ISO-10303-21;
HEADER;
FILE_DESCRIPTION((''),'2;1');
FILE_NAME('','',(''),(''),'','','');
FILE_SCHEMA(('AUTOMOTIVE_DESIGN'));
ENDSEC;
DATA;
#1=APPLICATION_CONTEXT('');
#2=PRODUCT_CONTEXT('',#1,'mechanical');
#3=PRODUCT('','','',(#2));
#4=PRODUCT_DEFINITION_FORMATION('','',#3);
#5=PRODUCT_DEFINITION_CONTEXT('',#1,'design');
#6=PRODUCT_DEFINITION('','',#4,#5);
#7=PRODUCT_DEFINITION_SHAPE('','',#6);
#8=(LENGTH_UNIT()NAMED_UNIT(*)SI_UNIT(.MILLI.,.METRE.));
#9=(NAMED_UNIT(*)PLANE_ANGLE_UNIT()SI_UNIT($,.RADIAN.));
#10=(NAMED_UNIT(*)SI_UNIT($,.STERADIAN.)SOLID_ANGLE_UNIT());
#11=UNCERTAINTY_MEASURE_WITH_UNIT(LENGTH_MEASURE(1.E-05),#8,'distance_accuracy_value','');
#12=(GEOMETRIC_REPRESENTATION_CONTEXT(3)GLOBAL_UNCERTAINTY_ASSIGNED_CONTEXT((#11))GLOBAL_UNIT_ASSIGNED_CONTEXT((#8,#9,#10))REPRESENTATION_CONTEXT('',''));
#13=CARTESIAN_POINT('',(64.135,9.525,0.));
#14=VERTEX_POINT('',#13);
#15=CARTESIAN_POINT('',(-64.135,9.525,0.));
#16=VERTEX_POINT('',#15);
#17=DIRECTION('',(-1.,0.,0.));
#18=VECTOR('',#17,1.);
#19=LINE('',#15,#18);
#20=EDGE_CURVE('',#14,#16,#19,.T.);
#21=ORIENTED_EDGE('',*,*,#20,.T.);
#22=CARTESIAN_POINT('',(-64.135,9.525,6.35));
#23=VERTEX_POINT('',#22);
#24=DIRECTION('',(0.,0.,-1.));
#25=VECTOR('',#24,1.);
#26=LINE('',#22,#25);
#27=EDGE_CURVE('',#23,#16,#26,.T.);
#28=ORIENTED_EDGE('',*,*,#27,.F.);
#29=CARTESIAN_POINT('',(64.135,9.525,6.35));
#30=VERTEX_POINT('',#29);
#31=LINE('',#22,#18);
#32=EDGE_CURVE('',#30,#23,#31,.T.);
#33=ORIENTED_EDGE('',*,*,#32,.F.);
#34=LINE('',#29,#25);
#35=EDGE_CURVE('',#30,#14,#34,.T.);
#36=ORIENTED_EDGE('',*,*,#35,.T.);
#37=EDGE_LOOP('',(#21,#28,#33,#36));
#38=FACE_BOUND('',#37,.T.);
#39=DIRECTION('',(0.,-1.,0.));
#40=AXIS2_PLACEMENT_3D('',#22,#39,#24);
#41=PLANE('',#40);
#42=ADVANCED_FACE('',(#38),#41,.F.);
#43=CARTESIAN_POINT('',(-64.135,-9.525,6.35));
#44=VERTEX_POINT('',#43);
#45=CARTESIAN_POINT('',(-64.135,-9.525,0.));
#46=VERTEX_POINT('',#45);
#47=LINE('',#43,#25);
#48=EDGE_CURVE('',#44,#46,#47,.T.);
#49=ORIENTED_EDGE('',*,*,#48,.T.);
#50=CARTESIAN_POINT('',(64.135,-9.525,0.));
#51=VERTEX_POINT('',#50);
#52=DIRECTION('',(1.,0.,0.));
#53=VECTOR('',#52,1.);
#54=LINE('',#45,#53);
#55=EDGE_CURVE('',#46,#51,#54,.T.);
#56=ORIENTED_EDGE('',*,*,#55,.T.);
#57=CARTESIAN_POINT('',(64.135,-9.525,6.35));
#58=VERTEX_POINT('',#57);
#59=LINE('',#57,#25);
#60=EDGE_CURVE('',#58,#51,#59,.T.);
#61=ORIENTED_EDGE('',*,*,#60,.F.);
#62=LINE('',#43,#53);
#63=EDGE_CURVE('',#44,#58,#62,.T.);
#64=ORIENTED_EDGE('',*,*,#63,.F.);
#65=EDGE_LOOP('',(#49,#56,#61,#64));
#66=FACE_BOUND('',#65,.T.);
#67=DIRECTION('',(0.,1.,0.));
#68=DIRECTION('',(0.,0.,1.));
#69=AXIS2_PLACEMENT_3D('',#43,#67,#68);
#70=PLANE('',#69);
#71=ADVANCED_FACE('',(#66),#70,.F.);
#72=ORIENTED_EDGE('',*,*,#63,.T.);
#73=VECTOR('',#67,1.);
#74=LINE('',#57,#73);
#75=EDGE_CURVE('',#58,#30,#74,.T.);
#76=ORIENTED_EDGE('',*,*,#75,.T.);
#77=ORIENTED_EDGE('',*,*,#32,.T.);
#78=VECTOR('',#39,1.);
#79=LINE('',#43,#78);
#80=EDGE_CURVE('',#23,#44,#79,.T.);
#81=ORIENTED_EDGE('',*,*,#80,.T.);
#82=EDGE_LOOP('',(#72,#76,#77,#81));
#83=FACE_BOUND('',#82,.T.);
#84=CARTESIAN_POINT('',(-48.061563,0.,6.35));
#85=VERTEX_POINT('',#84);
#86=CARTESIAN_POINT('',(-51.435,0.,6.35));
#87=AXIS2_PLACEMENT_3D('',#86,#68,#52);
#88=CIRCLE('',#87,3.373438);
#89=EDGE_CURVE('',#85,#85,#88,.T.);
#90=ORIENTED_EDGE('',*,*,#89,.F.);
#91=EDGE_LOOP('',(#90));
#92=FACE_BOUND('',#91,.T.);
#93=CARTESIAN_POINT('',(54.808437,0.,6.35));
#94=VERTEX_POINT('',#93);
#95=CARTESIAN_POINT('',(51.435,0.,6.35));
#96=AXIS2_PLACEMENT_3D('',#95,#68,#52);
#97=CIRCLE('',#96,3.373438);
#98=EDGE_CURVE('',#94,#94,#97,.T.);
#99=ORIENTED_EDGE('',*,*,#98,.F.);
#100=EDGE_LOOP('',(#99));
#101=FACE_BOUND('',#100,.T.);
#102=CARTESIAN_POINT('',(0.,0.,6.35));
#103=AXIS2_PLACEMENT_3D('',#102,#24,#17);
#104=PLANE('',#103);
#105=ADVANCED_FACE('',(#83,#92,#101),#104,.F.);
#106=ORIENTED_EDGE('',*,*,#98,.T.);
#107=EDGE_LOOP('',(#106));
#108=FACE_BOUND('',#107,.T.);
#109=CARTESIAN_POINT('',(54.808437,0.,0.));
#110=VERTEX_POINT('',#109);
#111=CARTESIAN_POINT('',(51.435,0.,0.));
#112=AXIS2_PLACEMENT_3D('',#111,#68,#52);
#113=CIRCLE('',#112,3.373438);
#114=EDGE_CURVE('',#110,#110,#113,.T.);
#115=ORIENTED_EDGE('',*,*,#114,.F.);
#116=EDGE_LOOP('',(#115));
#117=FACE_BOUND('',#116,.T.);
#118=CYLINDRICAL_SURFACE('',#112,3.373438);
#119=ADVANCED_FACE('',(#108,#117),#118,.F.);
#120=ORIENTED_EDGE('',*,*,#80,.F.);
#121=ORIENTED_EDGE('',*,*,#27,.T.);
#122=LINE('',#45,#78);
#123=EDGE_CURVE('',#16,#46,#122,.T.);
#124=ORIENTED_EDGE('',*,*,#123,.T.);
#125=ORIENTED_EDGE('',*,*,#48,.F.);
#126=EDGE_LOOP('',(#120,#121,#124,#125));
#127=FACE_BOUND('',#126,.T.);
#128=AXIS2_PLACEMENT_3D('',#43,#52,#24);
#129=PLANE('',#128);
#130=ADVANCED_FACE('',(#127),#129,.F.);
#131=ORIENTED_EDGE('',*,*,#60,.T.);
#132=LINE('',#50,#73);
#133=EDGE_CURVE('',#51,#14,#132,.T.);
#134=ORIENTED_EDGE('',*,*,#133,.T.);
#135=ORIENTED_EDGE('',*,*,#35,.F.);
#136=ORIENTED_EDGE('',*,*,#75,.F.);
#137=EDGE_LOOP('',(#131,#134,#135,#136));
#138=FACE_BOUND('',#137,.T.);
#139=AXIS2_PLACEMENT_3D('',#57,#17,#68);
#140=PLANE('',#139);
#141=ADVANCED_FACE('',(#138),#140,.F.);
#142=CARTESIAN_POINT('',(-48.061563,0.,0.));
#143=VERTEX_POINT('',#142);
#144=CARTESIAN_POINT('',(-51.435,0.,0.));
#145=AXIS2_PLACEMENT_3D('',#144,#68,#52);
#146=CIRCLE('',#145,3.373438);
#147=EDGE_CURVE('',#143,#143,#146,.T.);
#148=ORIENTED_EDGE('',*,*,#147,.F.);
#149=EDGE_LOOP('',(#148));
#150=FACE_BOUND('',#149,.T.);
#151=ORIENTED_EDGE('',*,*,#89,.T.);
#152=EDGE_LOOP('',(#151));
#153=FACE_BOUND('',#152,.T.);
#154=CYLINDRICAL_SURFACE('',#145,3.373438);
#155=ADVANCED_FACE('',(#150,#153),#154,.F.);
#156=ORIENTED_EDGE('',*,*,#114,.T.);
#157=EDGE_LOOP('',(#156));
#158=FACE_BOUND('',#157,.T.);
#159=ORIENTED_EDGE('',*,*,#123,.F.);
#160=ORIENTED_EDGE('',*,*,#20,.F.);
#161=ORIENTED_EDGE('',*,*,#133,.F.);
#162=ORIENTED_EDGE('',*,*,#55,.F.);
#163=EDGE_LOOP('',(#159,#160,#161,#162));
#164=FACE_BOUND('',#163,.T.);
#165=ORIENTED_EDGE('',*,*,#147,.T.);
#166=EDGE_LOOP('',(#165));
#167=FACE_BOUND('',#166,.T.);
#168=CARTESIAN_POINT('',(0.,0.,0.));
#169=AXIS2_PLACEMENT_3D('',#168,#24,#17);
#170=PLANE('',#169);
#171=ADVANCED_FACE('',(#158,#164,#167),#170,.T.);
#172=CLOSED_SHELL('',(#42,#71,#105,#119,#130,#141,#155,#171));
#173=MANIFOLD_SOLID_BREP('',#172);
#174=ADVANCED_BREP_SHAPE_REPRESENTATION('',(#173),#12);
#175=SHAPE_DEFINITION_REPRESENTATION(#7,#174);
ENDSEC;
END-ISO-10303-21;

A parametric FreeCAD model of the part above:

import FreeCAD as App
import Part
import Sketcher
Q = App.Units.Quantity


def add_polygon(sketch, points):
    """Adds a closed chain of lines whose ends are joined by coincident constraints."""
    first, n = sketch.GeometryCount, len(points)
    for a, b in zip(points, points[1:] + points[:1]):
        sketch.addGeometry(Part.LineSegment(App.Vector(*a, 0), App.Vector(*b, 0)), False)
    for i in range(n):
        sketch.addConstraint(Sketcher.Constraint("Coincident", first + i, 2, first + (i + 1) % n, 1))

doc = App.newDocument("Part")
body = doc.addObject("PartDesign::Body", "Body")

sketch1 = body.newObject("Sketcher::SketchObject", "Sketch")
sketch1.AttachmentSupport = (doc.getObject("XY_Plane"), [""])
sketch1.MapMode = "FlatFace"
add_polygon(sketch1, [(-64, 10), (-64, -10), (64, -10), (64, 10)])
sketch1.addConstraint(Sketcher.Constraint("Vertical", 0))
sketch1.addConstraint(Sketcher.Constraint("Horizontal", 1))
sketch1.addConstraint(Sketcher.Constraint("Vertical", 2))
sketch1.addConstraint(Sketcher.Constraint("Horizontal", 3))
sketch1.addConstraint(Sketcher.Constraint("Symmetric", 0, 2, 2, 2, -1, 1))
sketch1.addConstraint(Sketcher.Constraint("DistanceX", 1, 1, 1, 2, Q("5.05 in")))
sketch1.addConstraint(Sketcher.Constraint("DistanceY", 0, 2, 0, 1, Q("0.75 in")))
pad1 = body.newObject("PartDesign::Pad", "Pad")
pad1.Profile = sketch1
pad1.Length = Q("0.25 in")

sketch2 = body.newObject("Sketcher::SketchObject", "Sketch001")
sketch2.AttachmentSupport = (doc.getObject("XY_Plane"), [""])
sketch2.MapMode = "FlatFace"
sketch2.AttachmentOffset = App.Placement(App.Vector(0, 0, 0.25 * 25.4), App.Rotation())
sketch2.addGeometry(Part.Circle(App.Vector(-51.4, 0, 0), App.Vector(0, 0, 1), 3.4), False)
sketch2.addGeometry(Part.Circle(App.Vector(51.4, 0, 0), App.Vector(0, 0, 1), 3.4), False)
sketch2.addConstraint(Sketcher.Constraint("Equal", 0, 1))
sketch2.addConstraint(Sketcher.Constraint("Symmetric", 0, 3, 1, 3, -1, 1))
sketch2.addConstraint(Sketcher.Constraint("PointOnObject", 0, 3, -1))
sketch2.addConstraint(Sketcher.Constraint("Diameter", 0, Q("0.265625 in")))
sketch2.addConstraint(Sketcher.Constraint("DistanceX", 0, 3, 1, 3, Q("4.05 in")))
pocket1 = body.newObject("PartDesign::Pocket", "Pocket")
pocket1.Profile = sketch2
pocket1.Length = Q("0.25 in")

doc.recompute()
